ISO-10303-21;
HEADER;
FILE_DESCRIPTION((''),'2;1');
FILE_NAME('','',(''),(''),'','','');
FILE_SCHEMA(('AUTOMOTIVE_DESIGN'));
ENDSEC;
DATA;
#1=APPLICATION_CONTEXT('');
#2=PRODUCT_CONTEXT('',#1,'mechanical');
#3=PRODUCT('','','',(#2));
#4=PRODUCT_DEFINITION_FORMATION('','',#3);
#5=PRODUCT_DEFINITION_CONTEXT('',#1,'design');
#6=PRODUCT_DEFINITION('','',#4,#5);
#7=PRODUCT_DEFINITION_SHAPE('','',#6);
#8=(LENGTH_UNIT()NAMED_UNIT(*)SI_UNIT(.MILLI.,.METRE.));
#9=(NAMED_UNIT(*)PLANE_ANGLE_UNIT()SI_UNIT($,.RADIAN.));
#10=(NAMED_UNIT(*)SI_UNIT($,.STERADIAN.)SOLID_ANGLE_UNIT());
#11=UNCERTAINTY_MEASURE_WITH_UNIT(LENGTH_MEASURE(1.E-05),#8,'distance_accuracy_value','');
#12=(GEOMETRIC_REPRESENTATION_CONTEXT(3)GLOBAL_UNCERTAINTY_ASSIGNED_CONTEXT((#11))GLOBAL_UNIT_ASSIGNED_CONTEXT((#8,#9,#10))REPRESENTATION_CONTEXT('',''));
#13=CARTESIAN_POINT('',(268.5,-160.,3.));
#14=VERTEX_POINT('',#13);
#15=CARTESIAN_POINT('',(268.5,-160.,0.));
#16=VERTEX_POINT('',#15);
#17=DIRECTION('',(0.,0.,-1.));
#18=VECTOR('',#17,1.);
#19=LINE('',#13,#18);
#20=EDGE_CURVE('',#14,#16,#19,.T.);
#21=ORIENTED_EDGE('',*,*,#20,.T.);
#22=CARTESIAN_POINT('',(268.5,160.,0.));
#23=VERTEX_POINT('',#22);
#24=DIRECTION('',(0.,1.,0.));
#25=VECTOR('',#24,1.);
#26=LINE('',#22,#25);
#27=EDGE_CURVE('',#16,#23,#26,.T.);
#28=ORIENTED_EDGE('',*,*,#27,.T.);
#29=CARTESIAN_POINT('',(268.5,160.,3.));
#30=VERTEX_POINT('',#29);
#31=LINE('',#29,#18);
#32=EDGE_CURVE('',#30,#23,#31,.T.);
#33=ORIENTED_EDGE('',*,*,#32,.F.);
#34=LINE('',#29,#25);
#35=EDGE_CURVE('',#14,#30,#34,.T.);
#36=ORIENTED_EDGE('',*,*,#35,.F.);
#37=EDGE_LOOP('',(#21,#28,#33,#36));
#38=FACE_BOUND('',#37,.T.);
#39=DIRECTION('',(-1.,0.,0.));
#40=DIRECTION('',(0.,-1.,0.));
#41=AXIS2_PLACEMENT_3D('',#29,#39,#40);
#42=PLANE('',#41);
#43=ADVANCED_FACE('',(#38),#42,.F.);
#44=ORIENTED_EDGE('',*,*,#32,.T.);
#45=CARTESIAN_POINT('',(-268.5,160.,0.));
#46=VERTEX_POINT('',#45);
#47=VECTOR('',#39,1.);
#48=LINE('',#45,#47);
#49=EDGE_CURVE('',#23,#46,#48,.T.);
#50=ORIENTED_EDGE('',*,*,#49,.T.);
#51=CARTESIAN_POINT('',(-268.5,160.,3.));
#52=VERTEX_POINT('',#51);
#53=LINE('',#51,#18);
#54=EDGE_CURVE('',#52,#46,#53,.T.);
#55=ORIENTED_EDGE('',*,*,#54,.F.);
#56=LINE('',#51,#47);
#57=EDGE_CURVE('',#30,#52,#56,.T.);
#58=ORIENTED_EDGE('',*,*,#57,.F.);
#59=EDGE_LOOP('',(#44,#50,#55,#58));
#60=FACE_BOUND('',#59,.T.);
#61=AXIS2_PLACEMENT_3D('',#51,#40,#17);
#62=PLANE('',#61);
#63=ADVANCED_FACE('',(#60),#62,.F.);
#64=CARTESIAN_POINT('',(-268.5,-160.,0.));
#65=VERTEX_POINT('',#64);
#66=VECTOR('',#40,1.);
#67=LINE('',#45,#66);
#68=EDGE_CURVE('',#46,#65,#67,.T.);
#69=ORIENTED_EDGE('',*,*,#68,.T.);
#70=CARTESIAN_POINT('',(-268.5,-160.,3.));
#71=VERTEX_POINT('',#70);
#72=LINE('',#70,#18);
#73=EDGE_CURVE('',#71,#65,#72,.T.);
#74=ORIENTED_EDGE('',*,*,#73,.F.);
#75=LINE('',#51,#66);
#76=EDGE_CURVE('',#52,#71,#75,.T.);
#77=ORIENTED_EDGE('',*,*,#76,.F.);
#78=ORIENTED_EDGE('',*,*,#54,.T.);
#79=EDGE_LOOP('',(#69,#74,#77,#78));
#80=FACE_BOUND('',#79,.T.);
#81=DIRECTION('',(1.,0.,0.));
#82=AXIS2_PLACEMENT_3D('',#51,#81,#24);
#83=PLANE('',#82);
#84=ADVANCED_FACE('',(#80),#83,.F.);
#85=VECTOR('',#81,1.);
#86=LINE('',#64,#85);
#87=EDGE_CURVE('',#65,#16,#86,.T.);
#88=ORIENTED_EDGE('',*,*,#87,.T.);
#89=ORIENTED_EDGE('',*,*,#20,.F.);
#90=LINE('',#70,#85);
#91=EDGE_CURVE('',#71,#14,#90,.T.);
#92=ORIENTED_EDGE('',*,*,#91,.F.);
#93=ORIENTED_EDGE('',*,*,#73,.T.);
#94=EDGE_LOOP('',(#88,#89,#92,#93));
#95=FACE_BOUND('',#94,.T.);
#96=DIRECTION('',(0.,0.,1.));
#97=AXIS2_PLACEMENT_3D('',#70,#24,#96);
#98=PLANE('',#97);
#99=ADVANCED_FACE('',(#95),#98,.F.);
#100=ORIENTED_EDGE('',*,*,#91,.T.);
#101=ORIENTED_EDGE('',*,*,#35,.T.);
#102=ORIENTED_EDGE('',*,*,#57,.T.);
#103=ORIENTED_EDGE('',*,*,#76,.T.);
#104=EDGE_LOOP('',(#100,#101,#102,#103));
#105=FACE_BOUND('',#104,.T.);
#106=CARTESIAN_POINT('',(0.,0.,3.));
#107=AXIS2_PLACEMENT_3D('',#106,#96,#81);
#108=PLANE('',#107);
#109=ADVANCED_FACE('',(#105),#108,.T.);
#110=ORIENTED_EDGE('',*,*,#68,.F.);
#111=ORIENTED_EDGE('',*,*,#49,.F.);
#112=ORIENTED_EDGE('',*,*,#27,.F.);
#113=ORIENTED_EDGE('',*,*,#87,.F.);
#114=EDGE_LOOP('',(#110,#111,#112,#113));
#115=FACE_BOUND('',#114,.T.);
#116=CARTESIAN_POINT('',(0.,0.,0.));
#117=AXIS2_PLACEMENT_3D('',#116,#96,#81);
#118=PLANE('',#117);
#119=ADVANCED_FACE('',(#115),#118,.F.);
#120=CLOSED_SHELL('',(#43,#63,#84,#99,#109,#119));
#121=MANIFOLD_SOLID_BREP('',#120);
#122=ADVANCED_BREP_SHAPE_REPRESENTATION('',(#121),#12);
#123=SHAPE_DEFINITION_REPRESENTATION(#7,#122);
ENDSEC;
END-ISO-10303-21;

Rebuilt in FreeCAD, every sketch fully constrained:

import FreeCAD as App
import Part
import Sketcher
Q = App.Units.Quantity

doc = App.newDocument("Part")
body = doc.addObject("PartDesign::Body", "Body")

# Sketch on XY plane
sketch1 = doc.addObject("Sketcher::SketchObject", "Sketch")
body.addObject(sketch1)
sketch1.AttachmentSupport = (doc.XY_Plane, [""])
sketch1.MapMode = "FlatFace"
sketch1.addGeometry(Part.LineSegment(App.Vector(-268, 160, 0), App.Vector(-268, -160, 0)), False)
sketch1.addGeometry(Part.LineSegment(App.Vector(-268, -160, 0), App.Vector(268, -160, 0)), False)
sketch1.addGeometry(Part.LineSegment(App.Vector(268, -160, 0), App.Vector(268, 160, 0)), False)
sketch1.addGeometry(Part.LineSegment(App.Vector(268, 160, 0), App.Vector(-268, 160, 0)), False)
sketch1.addConstraint(Sketcher.Constraint("Coincident", 0, 2, 1, 1))
sketch1.addConstraint(Sketcher.Constraint("Coincident", 1, 2, 2, 1))
sketch1.addConstraint(Sketcher.Constraint("Coincident", 2, 2, 3, 1))
sketch1.addConstraint(Sketcher.Constraint("Coincident", 3, 2, 0, 1))
sketch1.addConstraint(Sketcher.Constraint("Vertical", 0))
sketch1.addConstraint(Sketcher.Constraint("Horizontal", 1))
sketch1.addConstraint(Sketcher.Constraint("Vertical", 2))
sketch1.addConstraint(Sketcher.Constraint("Horizontal", 3))
sketch1.addConstraint(Sketcher.Constraint("Symmetric", 0, 2, 2, 2, -1, 1))
sketch1.addConstraint(Sketcher.Constraint("DistanceX", 1, 1, 1, 2, Q("537 mm")))
sketch1.addConstraint(Sketcher.Constraint("DistanceY", 0, 2, 0, 1, Q("320 mm")))
pad1 = doc.addObject("PartDesign::Pad", "Pad")
body.addObject(pad1)
pad1.Profile = sketch1
pad1.Length = 3

doc.recompute()
